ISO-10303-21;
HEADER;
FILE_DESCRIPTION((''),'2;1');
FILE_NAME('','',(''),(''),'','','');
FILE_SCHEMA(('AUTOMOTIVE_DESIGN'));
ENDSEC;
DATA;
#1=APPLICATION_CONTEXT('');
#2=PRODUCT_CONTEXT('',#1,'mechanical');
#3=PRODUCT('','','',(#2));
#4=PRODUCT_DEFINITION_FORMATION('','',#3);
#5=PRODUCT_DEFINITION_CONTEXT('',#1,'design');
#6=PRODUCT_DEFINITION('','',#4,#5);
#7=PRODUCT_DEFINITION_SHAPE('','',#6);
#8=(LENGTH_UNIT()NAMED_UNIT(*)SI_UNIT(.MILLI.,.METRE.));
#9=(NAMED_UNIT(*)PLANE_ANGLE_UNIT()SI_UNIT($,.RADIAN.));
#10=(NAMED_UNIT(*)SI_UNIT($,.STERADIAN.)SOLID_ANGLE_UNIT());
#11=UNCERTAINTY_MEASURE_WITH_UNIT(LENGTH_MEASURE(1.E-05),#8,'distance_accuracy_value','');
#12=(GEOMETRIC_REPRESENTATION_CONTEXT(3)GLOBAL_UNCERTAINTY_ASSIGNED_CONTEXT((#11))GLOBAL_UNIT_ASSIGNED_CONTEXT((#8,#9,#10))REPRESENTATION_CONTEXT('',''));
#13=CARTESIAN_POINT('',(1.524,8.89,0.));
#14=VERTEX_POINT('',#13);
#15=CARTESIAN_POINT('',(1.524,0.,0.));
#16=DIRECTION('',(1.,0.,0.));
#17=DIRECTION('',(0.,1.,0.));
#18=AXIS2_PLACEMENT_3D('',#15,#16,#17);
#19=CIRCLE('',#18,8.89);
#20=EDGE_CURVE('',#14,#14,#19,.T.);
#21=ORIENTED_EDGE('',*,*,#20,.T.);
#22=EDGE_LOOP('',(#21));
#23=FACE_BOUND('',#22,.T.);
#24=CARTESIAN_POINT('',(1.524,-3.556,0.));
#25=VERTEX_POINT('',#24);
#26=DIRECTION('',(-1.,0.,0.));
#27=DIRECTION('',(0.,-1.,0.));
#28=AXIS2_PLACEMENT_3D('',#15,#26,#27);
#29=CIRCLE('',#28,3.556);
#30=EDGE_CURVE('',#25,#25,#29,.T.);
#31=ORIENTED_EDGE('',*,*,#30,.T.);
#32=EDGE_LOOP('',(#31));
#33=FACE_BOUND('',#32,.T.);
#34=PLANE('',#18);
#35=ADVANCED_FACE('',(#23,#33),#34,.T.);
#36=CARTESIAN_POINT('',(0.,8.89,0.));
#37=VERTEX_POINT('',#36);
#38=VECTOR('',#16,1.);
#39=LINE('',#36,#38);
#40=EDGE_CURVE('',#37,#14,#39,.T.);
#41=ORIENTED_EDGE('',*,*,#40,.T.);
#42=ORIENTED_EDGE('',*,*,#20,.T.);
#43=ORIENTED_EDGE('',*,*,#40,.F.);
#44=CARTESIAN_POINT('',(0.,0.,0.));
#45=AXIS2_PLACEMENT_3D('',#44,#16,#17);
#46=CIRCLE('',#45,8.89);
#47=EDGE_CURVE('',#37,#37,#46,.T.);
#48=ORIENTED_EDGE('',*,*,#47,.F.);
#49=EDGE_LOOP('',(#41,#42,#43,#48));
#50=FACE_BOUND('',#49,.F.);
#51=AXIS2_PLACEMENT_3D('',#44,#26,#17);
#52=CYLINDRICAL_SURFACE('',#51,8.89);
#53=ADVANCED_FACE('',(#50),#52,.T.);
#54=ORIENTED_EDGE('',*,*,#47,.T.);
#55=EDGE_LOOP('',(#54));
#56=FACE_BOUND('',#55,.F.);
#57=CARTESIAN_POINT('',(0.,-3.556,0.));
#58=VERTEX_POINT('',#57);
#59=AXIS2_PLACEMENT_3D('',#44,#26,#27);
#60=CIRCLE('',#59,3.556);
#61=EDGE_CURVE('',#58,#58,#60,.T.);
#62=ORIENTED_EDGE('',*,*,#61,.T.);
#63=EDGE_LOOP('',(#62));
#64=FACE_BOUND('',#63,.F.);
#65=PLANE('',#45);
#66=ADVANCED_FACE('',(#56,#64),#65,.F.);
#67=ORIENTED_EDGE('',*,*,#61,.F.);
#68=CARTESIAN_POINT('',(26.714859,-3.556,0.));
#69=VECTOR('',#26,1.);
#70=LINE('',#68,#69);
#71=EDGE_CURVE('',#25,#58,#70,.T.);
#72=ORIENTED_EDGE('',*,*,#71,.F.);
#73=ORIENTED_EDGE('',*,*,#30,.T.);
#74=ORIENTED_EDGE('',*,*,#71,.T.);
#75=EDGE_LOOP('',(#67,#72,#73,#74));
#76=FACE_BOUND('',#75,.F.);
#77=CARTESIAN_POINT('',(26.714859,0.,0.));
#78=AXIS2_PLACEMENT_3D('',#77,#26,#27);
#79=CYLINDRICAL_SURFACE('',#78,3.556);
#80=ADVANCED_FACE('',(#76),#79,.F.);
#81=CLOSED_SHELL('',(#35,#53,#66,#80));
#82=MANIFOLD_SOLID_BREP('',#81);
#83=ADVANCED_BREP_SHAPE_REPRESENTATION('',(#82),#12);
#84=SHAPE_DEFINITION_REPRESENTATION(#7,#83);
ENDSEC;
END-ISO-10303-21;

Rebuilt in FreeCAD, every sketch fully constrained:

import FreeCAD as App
import Part
import Sketcher

V = App.Vector
Q = App.Units.Quantity

doc = App.newDocument("Part")
body = doc.addObject("PartDesign::Body", "Body")

sketch1 = body.newObject("Sketcher::SketchObject", "Sketch")
sketch1.AttachmentSupport = (doc.getObject("YZ_Plane"), [""])
sketch1.MapMode = "FlatFace"
sketch1.addGeometry(Part.Circle(V(0, 0, 0), V(0, 0, 1), 9), False)
sketch1.addConstraint(Sketcher.Constraint("Coincident", 0, 3, -1, 1))
sketch1.addConstraint(Sketcher.Constraint("Diameter", 0, Q("0.7 in")))
pad1 = body.newObject("PartDesign::Pad", "Pad")
pad1.Profile = sketch1
pad1.Length = Q("0.06 in")

sketch2 = body.newObject("Sketcher::SketchObject", "Sketch001")
sketch2.AttachmentSupport = (doc.getObject("YZ_Plane"), [""])
sketch2.MapMode = "FlatFace"
sketch2.AttachmentOffset = App.Placement(V(0, 0, 0.06 * 25.4), App.Rotation())
sketch2.addGeometry(Part.Circle(V(0, 0, 0), V(0, 0, 1), 3.6), False)
sketch2.addConstraint(Sketcher.Constraint("Coincident", 0, 3, -1, 1))
sketch2.addConstraint(Sketcher.Constraint("Diameter", 0, Q("0.28 in")))
doc.recompute()
hole = body.newObject("PartDesign::Hole", "Hole")
hole.Profile = sketch2
hole.ThreadType = "None"
hole.Diameter = Q("0.28 in")
hole.DepthType = "ThroughAll"

doc.recompute()
